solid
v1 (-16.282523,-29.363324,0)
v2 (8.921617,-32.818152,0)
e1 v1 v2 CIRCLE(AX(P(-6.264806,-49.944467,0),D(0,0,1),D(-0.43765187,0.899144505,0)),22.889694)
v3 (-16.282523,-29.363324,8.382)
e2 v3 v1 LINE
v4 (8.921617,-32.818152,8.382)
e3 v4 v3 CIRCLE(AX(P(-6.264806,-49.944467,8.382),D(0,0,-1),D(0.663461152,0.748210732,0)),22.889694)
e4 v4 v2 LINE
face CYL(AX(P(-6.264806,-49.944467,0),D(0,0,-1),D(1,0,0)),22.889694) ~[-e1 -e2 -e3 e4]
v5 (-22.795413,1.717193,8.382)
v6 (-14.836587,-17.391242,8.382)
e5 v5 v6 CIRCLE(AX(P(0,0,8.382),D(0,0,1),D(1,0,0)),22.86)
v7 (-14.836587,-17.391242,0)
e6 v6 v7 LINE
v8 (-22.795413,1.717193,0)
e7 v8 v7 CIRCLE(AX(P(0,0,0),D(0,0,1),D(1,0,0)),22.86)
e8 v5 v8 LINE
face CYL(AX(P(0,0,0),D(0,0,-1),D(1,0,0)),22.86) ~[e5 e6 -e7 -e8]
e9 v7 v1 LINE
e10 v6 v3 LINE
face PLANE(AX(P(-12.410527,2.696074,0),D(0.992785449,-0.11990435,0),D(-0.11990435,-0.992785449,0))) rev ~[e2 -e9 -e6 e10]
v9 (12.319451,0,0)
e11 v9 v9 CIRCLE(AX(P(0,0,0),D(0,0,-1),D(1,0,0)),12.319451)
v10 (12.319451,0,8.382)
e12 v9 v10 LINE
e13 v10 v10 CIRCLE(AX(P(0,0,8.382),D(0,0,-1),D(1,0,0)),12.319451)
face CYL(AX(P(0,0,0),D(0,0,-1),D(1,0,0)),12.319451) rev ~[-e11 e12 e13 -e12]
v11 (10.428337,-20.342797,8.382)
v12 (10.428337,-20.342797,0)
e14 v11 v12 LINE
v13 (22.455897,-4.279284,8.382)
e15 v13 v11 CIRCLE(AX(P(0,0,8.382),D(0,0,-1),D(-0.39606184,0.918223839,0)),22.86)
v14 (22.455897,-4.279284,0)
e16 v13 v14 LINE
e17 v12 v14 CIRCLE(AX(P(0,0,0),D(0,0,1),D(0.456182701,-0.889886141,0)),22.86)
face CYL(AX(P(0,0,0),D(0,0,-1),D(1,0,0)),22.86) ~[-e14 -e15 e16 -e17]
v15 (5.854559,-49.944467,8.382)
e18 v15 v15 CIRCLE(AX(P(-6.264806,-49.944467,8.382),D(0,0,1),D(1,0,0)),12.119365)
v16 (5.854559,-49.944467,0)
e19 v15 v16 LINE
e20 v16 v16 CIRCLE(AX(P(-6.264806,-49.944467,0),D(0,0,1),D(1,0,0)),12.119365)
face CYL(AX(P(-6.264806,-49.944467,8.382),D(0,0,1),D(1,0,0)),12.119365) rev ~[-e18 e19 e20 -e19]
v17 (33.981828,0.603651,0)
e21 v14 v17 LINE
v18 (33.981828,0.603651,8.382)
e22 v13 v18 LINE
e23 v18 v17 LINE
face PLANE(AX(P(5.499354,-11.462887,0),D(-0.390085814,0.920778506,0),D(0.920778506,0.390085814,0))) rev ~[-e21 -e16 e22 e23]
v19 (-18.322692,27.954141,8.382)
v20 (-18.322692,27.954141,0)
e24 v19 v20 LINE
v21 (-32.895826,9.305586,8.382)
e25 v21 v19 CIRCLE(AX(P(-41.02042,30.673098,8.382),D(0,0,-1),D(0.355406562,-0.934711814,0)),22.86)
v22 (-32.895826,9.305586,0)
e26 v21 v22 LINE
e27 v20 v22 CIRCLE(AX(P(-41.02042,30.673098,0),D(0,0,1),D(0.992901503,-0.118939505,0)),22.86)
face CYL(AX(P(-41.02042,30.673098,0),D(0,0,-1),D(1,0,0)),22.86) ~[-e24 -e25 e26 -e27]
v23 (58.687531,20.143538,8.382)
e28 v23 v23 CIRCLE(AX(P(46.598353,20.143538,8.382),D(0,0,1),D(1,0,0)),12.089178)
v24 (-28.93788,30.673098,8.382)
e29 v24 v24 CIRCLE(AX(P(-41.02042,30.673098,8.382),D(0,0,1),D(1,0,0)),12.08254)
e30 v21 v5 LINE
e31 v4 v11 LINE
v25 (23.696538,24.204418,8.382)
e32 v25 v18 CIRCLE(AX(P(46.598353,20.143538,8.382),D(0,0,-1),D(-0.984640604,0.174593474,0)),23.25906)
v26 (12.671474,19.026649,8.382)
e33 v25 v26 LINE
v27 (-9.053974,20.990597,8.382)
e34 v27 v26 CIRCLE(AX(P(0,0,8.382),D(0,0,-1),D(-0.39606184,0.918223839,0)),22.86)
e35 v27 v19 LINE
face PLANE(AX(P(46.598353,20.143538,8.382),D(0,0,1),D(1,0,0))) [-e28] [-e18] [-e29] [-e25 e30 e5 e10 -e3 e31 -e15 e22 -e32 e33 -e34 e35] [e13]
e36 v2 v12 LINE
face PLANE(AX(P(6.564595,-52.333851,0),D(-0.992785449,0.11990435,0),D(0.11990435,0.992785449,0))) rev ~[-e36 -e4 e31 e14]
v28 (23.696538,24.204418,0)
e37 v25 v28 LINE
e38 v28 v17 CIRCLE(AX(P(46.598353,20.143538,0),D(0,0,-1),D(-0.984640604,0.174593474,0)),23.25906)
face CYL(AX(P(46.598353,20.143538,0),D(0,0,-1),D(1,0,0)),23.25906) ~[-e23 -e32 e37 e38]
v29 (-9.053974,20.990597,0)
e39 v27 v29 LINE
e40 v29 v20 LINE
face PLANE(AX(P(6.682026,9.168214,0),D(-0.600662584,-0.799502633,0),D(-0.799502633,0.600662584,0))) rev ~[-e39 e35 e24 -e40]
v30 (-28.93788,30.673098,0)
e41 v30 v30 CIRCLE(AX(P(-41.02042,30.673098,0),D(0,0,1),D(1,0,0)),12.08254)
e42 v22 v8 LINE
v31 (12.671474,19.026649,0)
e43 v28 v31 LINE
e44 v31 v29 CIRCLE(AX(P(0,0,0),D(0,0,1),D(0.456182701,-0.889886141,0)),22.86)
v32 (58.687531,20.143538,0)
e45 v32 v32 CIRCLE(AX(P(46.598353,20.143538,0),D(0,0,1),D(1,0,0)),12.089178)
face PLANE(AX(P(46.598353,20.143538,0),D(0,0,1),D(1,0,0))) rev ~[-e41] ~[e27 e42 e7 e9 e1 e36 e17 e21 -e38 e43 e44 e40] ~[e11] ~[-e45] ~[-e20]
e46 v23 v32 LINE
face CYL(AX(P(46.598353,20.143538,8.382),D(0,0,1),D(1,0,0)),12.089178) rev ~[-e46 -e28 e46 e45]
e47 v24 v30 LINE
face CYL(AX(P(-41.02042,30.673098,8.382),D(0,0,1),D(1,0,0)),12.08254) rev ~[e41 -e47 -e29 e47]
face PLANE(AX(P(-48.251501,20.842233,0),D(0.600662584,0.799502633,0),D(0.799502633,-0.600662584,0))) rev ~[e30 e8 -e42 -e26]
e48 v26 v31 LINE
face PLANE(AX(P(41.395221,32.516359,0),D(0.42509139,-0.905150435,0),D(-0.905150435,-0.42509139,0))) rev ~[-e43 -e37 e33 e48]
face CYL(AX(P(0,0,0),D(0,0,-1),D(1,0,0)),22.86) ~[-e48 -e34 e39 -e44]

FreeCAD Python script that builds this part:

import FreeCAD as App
import Part
import Sketcher
from FreeCAD import Vector
Q = App.Units.Quantity

doc = App.newDocument("Part")
body = doc.addObject("PartDesign::Body", "Body")

sketch1 = body.newObject("Sketcher::SketchObject", "Sketch")
sketch1.AttachmentSupport = (doc.getObject("XY_Plane"), [""])
sketch1.MapMode = "FlatFace"
sketch1.addGeometry(Part.Circle(Vector(0, 0, 0), Vector(0, 0, 1), 23), False)
sketch1.addConstraint([
    Sketcher.Constraint("Coincident", 0, 3, -1, 1),
    Sketcher.Constraint("Diameter", 0, Q("1.8 in")),
])
pad1 = body.newObject("PartDesign::Pad", "Pad")
pad1.Profile = sketch1
pad1.Length = Q("0.33 in")

sketch2 = body.newObject("Sketcher::SketchObject", "Sketch001")
sketch2.AttachmentSupport = (doc.getObject("XY_Plane"), [""])
sketch2.MapMode = "FlatFace"
sketch2.addGeometry([
    Part.Circle(Vector(-41, 31, 0), Vector(0, 0, 1), 12),
    Part.Circle(Vector(47, 20, 0), Vector(0, 0, 1), 12),
    Part.Circle(Vector(-6, -51, 0), Vector(0, 0, 1), 12),
], False)
sketch2.addConstraint([
    Sketcher.Constraint("Equal", 0, 1),
    Sketcher.Constraint("Equal", 1, 2),
    Sketcher.Constraint("Diameter", 0, Q("0.95 in")),
    Sketcher.Constraint("DistanceX", 0, 3, -1, 1, Q("41.23553 mm")),
    Sketcher.Constraint("DistanceY", -1, 1, 0, 3, Q("30.996851 mm")),
    Sketcher.Constraint("DistanceX", -1, 1, 1, 3, Q("47.391274 mm")),
    Sketcher.Constraint("DistanceY", -1, 1, 1, 3, Q("20.267213 mm")),
    Sketcher.Constraint("DistanceX", 2, 3, -1, 1, Q("6.256912 mm")),
    Sketcher.Constraint("DistanceY", 2, 3, -1, 1, Q("50.548393 mm")),
])
pocket1 = body.newObject("PartDesign::Pocket", "Pocket")
pocket1.Profile = sketch2
pocket1.Length = Q("1.02 in")
body2 = doc.addObject("PartDesign::Body", "Body001")

sketch3 = body2.newObject("Sketcher::SketchObject", "Sketch002")
sketch3.AttachmentSupport = (doc.getObject("XY_Plane001"), [""])
sketch3.MapMode = "FlatFace"
sketch3.addGeometry([
    Part.LineSegment(Vector(-7, -10, 0), Vector(0, 0, 0)),
    Part.LineSegment(Vector(0, 0, 0), Vector(7, 9, 0)),
    Part.LineSegment(Vector(7, 9, 0), Vector(-34, 40, 0)),
    Part.LineSegment(Vector(-34, 40, 0), Vector(-41, 31, 0)),
    Part.LineSegment(Vector(-41, 31, 0), Vector(-48, 21, 0)),
    Part.LineSegment(Vector(-48, 21, 0), Vector(-7, -10, 0)),
], False)
sketch3.addConstraint([
    Sketcher.Constraint("Coincident", 0, 2, 1, 1),
    Sketcher.Constraint("Coincident", 1, 2, 2, 1),
    Sketcher.Constraint("Coincident", 2, 2, 3, 1),
    Sketcher.Constraint("Coincident", 3, 2, 4, 1),
    Sketcher.Constraint("Coincident", 4, 2, 5, 1),
    Sketcher.Constraint("Coincident", 5, 2, 0, 1),
    Sketcher.Constraint("Coincident", 0, 2, -1, 1),
    Sketcher.Constraint("Parallel", 0, 1),
    Sketcher.Constraint("Perpendicular", 2, 4),
    Sketcher.Constraint("Perpendicular", 4, 5),
    Sketcher.Constraint("DistanceX", 4, 2, -1, 1, Q("48.251501 mm")),
    Sketcher.Constraint("DistanceX", 2, 2, 1, 2, Q("40.523699 mm")),
    Sketcher.Constraint("Distance", 0, Q("12.32075 mm")),
    Sketcher.Constraint("Distance", 1, Q("11.34485 mm")),
    Sketcher.Constraint("Distance", 3, Q("11.346311 mm")),
    Sketcher.Constraint("Distance", 4, Q("12.319451 mm")),
    Sketcher.Constraint("DistanceY", -1, 1, 2, 2, Q("39.613479 mm")),
])
pad2 = body2.newObject("PartDesign::Pad", "Pad001")
pad2.Profile = sketch3
pad2.Length = Q("0.33 in")
body3 = doc.addObject("PartDesign::Body", "Body002")

sketch4 = body3.newObject("Sketcher::SketchObject", "Sketch003")
sketch4.AttachmentSupport = (doc.getObject("XY_Plane002"), [""])
sketch4.MapMode = "FlatFace"
sketch4.addGeometry(Part.Circle(Vector(-41, 31, 0), Vector(0, 0, 1), 23), False)
sketch4.addConstraint([
    Sketcher.Constraint("Diameter", 0, Q("1.8 in")),
    Sketcher.Constraint("DistanceY", -1, 1, 0, 3, Q("30.673098 mm")),
    Sketcher.Constraint("DistanceX", 0, 3, -1, 1, Q("41.02042 mm")),
])
pad3 = body3.newObject("PartDesign::Pad", "Pad002")
pad3.Profile = sketch4
pad3.Length = Q("0.33 in")
body4 = doc.addObject("PartDesign::Body", "Body003")

sketch5 = body4.newObject("Sketcher::SketchObject", "Sketch004")
sketch5.AttachmentSupport = (doc.getObject("XY_Plane003"), [""])
sketch5.MapMode = "FlatFace"
sketch5.addGeometry(Part.Circle(Vector(47, 20, 0), Vector(0, 0, 1), 23), False)
sketch5.addConstraint([
    Sketcher.Constraint("Diameter", 0, Q("46.518121 mm")),
    Sketcher.Constraint("DistanceX", -1, 1, 0, 3, Q("46.598353 mm")),
    Sketcher.Constraint("DistanceY", -1, 1, 0, 3, Q("20.143538 mm")),
])
pad4 = body4.newObject("PartDesign::Pad", "Pad003")
pad4.Profile = sketch5
pad4.Length = Q("0.33 in")
body5 = doc.addObject("PartDesign::Body", "Body004")

sketch6 = body5.newObject("Sketcher::SketchObject", "Sketch005")
sketch6.AttachmentSupport = (doc.getObject("XY_Plane004"), [""])
sketch6.MapMode = "FlatFace"
sketch6.addGeometry(Part.Circle(Vector(-6, -50, 0), Vector(0, 0, 1), 23), False)
sketch6.addConstraint([
    Sketcher.Constraint("Diameter", 0, Q("45.779388 mm")),
    Sketcher.Constraint("DistanceX", 0, 3, -1, 1, Q("6.264806 mm")),
    Sketcher.Constraint("DistanceY", 0, 3, -1, 1, Q("49.944467 mm")),
])
pad5 = body5.newObject("PartDesign::Pad", "Pad004")
pad5.Profile = sketch6
pad5.Length = Q("0.33 in")
body6 = doc.addObject("PartDesign::Body", "Body005")

sketch7 = body6.newObject("Sketcher::SketchObject", "Sketch006")
sketch7.AttachmentSupport = (doc.getObject("XY_Plane005"), [""])
sketch7.MapMode = "FlatFace"
sketch7.addGeometry([
    Part.LineSegment(Vector(0, 0, 0), Vector(-12, 3, 0)),
    Part.LineSegment(Vector(-12, 3, 0), Vector(-19, -49, 0)),
    Part.LineSegment(Vector(-19, -49, 0), Vector(-6, -51, 0)),
    Part.LineSegment(Vector(-6, -51, 0), Vector(7, -52, 0)),
    Part.LineSegment(Vector(7, -52, 0), Vector(13, -2, 0)),
    Part.LineSegment(Vector(13, -2, 0), Vector(0, 0, 0)),
], False)
sketch7.addConstraint([
    Sketcher.Constraint("Coincident", 0, 2, 1, 1),
    Sketcher.Constraint("Coincident", 1, 2, 2, 1),
    Sketcher.Constraint("Coincident", 2, 2, 3, 1),
    Sketcher.Constraint("Coincident", 3, 2, 4, 1),
    Sketcher.Constraint("Coincident", 4, 2, 5, 1),
    Sketcher.Constraint("Coincident", 5, 2, 0, 1),
    Sketcher.Constraint("Coincident", 5, 2, -1, 1),
    Sketcher.Constraint("Perpendicular", 1, 2),
    Sketcher.Constraint("Parallel", 2, 3),
    Sketcher.Constraint("Perpendicular", 3, 4),
    Sketcher.Constraint("Perpendicular", 4, 5),
    Sketcher.Constraint("Equal", 3, 5),
    Sketcher.Constraint("DistanceY", 2, 2, -1, 1, Q("2 in")),
    Sketcher.Constraint("Distance", 0, Q("0.5 in")),
    Sketcher.Constraint("DistanceX", -1, 1, 4, 2, Q("0.5 in")),
    Sketcher.Constraint("DistanceY", 1, 2, -1, 1, Q("49.283898 mm")),
    Sketcher.Constraint("Distance", 1, Q("52.35771 mm")),
])
pad6 = body6.newObject("PartDesign::Pad", "Pad005")
pad6.Profile = sketch7
pad6.Length = Q("0.33 in")
body7 = doc.addObject("PartDesign::Body", "Body006")

sketch8 = body7.newObject("Sketcher::SketchObject", "Sketch007")
sketch8.AttachmentSupport = (doc.getObject("XY_Plane006"), [""])
sketch8.MapMode = "FlatFace"
sketch8.addGeometry([
    Part.LineSegment(Vector(-4.620234, 10.905837, 0), Vector(0, 0, 0)),
    Part.LineSegment(Vector(0, 0, 0), Vector(5.499354, -11.462887, 0)),
    Part.LineSegment(Vector(5.499354, -11.462887, 0), Vector(51.729638, 8.122472, 0)),
    Part.LineSegment(Vector(51.729638, 8.122472, 0), Vector(46.775548, 19.816359, 0)),
    Part.LineSegment(Vector(46.775548, 19.816359, 0), Vector(41.395221, 32.516359, 0)),
    Part.LineSegment(Vector(41.395221, 32.516359, 0), Vector(-4.620234, 10.905837, 0)),
], False)
sketch8.addConstraint([
    Sketcher.Constraint("Coincident", 0, 2, 1, 1),
    Sketcher.Constraint("Coincident", 1, 2, 2, 1),
    Sketcher.Constraint("Coincident", 2, 2, 3, 1),
    Sketcher.Constraint("Coincident", 3, 2, 4, 1),
    Sketcher.Constraint("Coincident", 4, 2, 5, 1),
    Sketcher.Constraint("Coincident", 5, 2, 0, 1),
    Sketcher.Constraint("Coincident", 0, 2, -1, 1),
    Sketcher.Constraint("Distance", 3, Q("0.5 in")),
    Sketcher.Constraint("DistanceY", 3, 2, 4, 2, Q("0.5 in")),
    Sketcher.Constraint("DistanceX", -1, 1, 2, 2, Q("2.0365999 in")),
    Sketcher.Constraint("Distance", 1, Q("12.713799 mm")),
    Sketcher.Constraint("Distance", 0, Q("11.844148 mm")),
    Sketcher.Constraint("DistanceX", -1, 1, 3, 2, Q("46.775548 mm")),
    Sketcher.Constraint("DistanceY", -1, 1, 3, 2, Q("19.816359 mm")),
    Sketcher.Constraint("DistanceX", -1, 1, 4, 2, Q("41.395221 mm")),
    Sketcher.Constraint("DistanceY", 1, 2, 2, 2, Q("19.585359 mm")),
    Sketcher.Constraint("Distance", 5, Q("50.837356 mm")),
])
pad7 = body7.newObject("PartDesign::Pad", "Pad006")
pad7.Profile = sketch8
pad7.Length = Q("0.33 in")
body8 = doc.addObject("PartDesign::Body", "Body007")

sketch9 = body8.newObject("Sketcher::SketchObject", "Sketch008")
sketch9.AttachmentSupport = (doc.getObject("XY_Plane007"), [""])
sketch9.MapMode = "FlatFace"
sketch9.addGeometry(Part.Circle(Vector(0, 0, 0), Vector(0, 0, 1), 12), False)
sketch9.addConstraint([
    Sketcher.Constraint("Coincident", 0, 3, -1, 1),
    Sketcher.Constraint("Diameter", 0, Q("0.95 in")),
])
pad8 = body8.newObject("PartDesign::Pad", "Pad007")
pad8.Profile = sketch9
pad8.Length = Q("1.57 in")
doc.recompute()

body9 = doc.addObject("PartDesign::Body", "Body008")
body9.BaseFeature = body8
boolean = body.newObject("PartDesign::Boolean", "Boolean")
boolean.Type = "Cut"
boolean.addObjects([body9])
doc.recompute()

body10 = doc.addObject("PartDesign::Body", "Body009")
body10.BaseFeature = body8
boolean2 = body2.newObject("PartDesign::Boolean", "Boolean001")
boolean2.Type = "Cut"
boolean2.addObjects([body10])
doc.recompute()

body11 = doc.addObject("PartDesign::Body", "Body010")
body11.BaseFeature = body8
boolean3 = body6.newObject("PartDesign::Boolean", "Boolean002")
boolean3.Type = "Cut"
boolean3.addObjects([body11])
doc.recompute()

boolean4 = body7.newObject("PartDesign::Boolean", "Boolean003")
boolean4.Type = "Cut"
boolean4.addObjects([body8])
body6.AllowCompound = True
doc.recompute()

boolean5 = body6.newObject("PartDesign::Boolean", "Boolean004")
boolean5.Type = "Fuse"
boolean5.addObjects([body2])
doc.recompute()

boolean6 = body6.newObject("PartDesign::Boolean", "Boolean005")
boolean6.Type = "Fuse"
boolean6.addObjects([body3])
doc.recompute()

boolean7 = body6.newObject("PartDesign::Boolean", "Boolean006")
boolean7.Type = "Fuse"
boolean7.addObjects([body])
doc.recompute()

boolean8 = body6.newObject("PartDesign::Boolean", "Boolean007")
boolean8.Type = "Fuse"
boolean8.addObjects([body4])
doc.recompute()

boolean9 = body6.newObject("PartDesign::Boolean", "Boolean008")
boolean9.Type = "Fuse"
boolean9.addObjects([body5])
doc.recompute()

boolean10 = body6.newObject("PartDesign::Boolean", "Boolean009")
boolean10.Type = "Fuse"
boolean10.addObjects([body7])

sketch10 = body6.newObject("Sketcher::SketchObject", "Sketch009")
sketch10.AttachmentSupport = (doc.getObject("XY_Plane005"), [""])
sketch10.MapMode = "FlatFace"
sketch10.AttachmentOffset = App.Placement(Vector(0, 0, 0.33 * 25.4), App.Rotation())
sketch10.addGeometry([
    Part.Circle(Vector(-41, 31, 0), Vector(0, 0, 1), 12),
    Part.Circle(Vector(-6, -50, 0), Vector(0, 0, 1), 12),
    Part.Circle(Vector(47, 20, 0), Vector(0, 0, 1), 12),
], False)
sketch10.addConstraint([
    Sketcher.Constraint("Diameter", 0, Q("24.16508 mm")),
    Sketcher.Constraint("Diameter", 1, Q("24.238729 mm")),
    Sketcher.Constraint("Diameter", 2, Q("24.178356 mm")),
    Sketcher.Constraint("DistanceY", -1, 1, 0, 3, Q("30.673098 mm")),
    Sketcher.Constraint("DistanceX", 0, 3, -1, 1, Q("41.02042 mm")),
    Sketcher.Constraint("DistanceX", 1, 3, 2, 3, Q("52.863159 mm")),
    Sketcher.Constraint("DistanceY", 2, 3, 0, 3, Q("10.529561 mm")),
    Sketcher.Constraint("DistanceX", 1, 3, -1, 1, Q("6.264806 mm")),
    Sketcher.Constraint("DistanceY", 1, 3, -1, 1, Q("49.944467 mm")),
])
pocket2 = body6.newObject("PartDesign::Pocket", "Pocket001")
pocket2.Profile = sketch10
pocket2.Length = Q("1 in")

sketch11 = body6.newObject("Sketcher::SketchObject", "Sketch010")
sketch11.AttachmentSupport = (doc.getObject("XY_Plane005"), [""])
sketch11.MapMode = "FlatFace"
sketch11.addGeometry(Part.Circle(Vector(0, 0, 0), Vector(0, 0, 1), 12), False)
sketch11.addConstraint([
    Sketcher.Constraint("Coincident", 0, 3, -1, 1),
    Sketcher.Constraint("Diameter", 0, Q("24.638902 mm")),
])
pocket3 = body6.newObject("PartDesign::Pocket", "Pocket002")
pocket3.Profile = sketch11
pocket3.Length = Q("1 in")
pocket3.Reversed = True

doc.recompute()
